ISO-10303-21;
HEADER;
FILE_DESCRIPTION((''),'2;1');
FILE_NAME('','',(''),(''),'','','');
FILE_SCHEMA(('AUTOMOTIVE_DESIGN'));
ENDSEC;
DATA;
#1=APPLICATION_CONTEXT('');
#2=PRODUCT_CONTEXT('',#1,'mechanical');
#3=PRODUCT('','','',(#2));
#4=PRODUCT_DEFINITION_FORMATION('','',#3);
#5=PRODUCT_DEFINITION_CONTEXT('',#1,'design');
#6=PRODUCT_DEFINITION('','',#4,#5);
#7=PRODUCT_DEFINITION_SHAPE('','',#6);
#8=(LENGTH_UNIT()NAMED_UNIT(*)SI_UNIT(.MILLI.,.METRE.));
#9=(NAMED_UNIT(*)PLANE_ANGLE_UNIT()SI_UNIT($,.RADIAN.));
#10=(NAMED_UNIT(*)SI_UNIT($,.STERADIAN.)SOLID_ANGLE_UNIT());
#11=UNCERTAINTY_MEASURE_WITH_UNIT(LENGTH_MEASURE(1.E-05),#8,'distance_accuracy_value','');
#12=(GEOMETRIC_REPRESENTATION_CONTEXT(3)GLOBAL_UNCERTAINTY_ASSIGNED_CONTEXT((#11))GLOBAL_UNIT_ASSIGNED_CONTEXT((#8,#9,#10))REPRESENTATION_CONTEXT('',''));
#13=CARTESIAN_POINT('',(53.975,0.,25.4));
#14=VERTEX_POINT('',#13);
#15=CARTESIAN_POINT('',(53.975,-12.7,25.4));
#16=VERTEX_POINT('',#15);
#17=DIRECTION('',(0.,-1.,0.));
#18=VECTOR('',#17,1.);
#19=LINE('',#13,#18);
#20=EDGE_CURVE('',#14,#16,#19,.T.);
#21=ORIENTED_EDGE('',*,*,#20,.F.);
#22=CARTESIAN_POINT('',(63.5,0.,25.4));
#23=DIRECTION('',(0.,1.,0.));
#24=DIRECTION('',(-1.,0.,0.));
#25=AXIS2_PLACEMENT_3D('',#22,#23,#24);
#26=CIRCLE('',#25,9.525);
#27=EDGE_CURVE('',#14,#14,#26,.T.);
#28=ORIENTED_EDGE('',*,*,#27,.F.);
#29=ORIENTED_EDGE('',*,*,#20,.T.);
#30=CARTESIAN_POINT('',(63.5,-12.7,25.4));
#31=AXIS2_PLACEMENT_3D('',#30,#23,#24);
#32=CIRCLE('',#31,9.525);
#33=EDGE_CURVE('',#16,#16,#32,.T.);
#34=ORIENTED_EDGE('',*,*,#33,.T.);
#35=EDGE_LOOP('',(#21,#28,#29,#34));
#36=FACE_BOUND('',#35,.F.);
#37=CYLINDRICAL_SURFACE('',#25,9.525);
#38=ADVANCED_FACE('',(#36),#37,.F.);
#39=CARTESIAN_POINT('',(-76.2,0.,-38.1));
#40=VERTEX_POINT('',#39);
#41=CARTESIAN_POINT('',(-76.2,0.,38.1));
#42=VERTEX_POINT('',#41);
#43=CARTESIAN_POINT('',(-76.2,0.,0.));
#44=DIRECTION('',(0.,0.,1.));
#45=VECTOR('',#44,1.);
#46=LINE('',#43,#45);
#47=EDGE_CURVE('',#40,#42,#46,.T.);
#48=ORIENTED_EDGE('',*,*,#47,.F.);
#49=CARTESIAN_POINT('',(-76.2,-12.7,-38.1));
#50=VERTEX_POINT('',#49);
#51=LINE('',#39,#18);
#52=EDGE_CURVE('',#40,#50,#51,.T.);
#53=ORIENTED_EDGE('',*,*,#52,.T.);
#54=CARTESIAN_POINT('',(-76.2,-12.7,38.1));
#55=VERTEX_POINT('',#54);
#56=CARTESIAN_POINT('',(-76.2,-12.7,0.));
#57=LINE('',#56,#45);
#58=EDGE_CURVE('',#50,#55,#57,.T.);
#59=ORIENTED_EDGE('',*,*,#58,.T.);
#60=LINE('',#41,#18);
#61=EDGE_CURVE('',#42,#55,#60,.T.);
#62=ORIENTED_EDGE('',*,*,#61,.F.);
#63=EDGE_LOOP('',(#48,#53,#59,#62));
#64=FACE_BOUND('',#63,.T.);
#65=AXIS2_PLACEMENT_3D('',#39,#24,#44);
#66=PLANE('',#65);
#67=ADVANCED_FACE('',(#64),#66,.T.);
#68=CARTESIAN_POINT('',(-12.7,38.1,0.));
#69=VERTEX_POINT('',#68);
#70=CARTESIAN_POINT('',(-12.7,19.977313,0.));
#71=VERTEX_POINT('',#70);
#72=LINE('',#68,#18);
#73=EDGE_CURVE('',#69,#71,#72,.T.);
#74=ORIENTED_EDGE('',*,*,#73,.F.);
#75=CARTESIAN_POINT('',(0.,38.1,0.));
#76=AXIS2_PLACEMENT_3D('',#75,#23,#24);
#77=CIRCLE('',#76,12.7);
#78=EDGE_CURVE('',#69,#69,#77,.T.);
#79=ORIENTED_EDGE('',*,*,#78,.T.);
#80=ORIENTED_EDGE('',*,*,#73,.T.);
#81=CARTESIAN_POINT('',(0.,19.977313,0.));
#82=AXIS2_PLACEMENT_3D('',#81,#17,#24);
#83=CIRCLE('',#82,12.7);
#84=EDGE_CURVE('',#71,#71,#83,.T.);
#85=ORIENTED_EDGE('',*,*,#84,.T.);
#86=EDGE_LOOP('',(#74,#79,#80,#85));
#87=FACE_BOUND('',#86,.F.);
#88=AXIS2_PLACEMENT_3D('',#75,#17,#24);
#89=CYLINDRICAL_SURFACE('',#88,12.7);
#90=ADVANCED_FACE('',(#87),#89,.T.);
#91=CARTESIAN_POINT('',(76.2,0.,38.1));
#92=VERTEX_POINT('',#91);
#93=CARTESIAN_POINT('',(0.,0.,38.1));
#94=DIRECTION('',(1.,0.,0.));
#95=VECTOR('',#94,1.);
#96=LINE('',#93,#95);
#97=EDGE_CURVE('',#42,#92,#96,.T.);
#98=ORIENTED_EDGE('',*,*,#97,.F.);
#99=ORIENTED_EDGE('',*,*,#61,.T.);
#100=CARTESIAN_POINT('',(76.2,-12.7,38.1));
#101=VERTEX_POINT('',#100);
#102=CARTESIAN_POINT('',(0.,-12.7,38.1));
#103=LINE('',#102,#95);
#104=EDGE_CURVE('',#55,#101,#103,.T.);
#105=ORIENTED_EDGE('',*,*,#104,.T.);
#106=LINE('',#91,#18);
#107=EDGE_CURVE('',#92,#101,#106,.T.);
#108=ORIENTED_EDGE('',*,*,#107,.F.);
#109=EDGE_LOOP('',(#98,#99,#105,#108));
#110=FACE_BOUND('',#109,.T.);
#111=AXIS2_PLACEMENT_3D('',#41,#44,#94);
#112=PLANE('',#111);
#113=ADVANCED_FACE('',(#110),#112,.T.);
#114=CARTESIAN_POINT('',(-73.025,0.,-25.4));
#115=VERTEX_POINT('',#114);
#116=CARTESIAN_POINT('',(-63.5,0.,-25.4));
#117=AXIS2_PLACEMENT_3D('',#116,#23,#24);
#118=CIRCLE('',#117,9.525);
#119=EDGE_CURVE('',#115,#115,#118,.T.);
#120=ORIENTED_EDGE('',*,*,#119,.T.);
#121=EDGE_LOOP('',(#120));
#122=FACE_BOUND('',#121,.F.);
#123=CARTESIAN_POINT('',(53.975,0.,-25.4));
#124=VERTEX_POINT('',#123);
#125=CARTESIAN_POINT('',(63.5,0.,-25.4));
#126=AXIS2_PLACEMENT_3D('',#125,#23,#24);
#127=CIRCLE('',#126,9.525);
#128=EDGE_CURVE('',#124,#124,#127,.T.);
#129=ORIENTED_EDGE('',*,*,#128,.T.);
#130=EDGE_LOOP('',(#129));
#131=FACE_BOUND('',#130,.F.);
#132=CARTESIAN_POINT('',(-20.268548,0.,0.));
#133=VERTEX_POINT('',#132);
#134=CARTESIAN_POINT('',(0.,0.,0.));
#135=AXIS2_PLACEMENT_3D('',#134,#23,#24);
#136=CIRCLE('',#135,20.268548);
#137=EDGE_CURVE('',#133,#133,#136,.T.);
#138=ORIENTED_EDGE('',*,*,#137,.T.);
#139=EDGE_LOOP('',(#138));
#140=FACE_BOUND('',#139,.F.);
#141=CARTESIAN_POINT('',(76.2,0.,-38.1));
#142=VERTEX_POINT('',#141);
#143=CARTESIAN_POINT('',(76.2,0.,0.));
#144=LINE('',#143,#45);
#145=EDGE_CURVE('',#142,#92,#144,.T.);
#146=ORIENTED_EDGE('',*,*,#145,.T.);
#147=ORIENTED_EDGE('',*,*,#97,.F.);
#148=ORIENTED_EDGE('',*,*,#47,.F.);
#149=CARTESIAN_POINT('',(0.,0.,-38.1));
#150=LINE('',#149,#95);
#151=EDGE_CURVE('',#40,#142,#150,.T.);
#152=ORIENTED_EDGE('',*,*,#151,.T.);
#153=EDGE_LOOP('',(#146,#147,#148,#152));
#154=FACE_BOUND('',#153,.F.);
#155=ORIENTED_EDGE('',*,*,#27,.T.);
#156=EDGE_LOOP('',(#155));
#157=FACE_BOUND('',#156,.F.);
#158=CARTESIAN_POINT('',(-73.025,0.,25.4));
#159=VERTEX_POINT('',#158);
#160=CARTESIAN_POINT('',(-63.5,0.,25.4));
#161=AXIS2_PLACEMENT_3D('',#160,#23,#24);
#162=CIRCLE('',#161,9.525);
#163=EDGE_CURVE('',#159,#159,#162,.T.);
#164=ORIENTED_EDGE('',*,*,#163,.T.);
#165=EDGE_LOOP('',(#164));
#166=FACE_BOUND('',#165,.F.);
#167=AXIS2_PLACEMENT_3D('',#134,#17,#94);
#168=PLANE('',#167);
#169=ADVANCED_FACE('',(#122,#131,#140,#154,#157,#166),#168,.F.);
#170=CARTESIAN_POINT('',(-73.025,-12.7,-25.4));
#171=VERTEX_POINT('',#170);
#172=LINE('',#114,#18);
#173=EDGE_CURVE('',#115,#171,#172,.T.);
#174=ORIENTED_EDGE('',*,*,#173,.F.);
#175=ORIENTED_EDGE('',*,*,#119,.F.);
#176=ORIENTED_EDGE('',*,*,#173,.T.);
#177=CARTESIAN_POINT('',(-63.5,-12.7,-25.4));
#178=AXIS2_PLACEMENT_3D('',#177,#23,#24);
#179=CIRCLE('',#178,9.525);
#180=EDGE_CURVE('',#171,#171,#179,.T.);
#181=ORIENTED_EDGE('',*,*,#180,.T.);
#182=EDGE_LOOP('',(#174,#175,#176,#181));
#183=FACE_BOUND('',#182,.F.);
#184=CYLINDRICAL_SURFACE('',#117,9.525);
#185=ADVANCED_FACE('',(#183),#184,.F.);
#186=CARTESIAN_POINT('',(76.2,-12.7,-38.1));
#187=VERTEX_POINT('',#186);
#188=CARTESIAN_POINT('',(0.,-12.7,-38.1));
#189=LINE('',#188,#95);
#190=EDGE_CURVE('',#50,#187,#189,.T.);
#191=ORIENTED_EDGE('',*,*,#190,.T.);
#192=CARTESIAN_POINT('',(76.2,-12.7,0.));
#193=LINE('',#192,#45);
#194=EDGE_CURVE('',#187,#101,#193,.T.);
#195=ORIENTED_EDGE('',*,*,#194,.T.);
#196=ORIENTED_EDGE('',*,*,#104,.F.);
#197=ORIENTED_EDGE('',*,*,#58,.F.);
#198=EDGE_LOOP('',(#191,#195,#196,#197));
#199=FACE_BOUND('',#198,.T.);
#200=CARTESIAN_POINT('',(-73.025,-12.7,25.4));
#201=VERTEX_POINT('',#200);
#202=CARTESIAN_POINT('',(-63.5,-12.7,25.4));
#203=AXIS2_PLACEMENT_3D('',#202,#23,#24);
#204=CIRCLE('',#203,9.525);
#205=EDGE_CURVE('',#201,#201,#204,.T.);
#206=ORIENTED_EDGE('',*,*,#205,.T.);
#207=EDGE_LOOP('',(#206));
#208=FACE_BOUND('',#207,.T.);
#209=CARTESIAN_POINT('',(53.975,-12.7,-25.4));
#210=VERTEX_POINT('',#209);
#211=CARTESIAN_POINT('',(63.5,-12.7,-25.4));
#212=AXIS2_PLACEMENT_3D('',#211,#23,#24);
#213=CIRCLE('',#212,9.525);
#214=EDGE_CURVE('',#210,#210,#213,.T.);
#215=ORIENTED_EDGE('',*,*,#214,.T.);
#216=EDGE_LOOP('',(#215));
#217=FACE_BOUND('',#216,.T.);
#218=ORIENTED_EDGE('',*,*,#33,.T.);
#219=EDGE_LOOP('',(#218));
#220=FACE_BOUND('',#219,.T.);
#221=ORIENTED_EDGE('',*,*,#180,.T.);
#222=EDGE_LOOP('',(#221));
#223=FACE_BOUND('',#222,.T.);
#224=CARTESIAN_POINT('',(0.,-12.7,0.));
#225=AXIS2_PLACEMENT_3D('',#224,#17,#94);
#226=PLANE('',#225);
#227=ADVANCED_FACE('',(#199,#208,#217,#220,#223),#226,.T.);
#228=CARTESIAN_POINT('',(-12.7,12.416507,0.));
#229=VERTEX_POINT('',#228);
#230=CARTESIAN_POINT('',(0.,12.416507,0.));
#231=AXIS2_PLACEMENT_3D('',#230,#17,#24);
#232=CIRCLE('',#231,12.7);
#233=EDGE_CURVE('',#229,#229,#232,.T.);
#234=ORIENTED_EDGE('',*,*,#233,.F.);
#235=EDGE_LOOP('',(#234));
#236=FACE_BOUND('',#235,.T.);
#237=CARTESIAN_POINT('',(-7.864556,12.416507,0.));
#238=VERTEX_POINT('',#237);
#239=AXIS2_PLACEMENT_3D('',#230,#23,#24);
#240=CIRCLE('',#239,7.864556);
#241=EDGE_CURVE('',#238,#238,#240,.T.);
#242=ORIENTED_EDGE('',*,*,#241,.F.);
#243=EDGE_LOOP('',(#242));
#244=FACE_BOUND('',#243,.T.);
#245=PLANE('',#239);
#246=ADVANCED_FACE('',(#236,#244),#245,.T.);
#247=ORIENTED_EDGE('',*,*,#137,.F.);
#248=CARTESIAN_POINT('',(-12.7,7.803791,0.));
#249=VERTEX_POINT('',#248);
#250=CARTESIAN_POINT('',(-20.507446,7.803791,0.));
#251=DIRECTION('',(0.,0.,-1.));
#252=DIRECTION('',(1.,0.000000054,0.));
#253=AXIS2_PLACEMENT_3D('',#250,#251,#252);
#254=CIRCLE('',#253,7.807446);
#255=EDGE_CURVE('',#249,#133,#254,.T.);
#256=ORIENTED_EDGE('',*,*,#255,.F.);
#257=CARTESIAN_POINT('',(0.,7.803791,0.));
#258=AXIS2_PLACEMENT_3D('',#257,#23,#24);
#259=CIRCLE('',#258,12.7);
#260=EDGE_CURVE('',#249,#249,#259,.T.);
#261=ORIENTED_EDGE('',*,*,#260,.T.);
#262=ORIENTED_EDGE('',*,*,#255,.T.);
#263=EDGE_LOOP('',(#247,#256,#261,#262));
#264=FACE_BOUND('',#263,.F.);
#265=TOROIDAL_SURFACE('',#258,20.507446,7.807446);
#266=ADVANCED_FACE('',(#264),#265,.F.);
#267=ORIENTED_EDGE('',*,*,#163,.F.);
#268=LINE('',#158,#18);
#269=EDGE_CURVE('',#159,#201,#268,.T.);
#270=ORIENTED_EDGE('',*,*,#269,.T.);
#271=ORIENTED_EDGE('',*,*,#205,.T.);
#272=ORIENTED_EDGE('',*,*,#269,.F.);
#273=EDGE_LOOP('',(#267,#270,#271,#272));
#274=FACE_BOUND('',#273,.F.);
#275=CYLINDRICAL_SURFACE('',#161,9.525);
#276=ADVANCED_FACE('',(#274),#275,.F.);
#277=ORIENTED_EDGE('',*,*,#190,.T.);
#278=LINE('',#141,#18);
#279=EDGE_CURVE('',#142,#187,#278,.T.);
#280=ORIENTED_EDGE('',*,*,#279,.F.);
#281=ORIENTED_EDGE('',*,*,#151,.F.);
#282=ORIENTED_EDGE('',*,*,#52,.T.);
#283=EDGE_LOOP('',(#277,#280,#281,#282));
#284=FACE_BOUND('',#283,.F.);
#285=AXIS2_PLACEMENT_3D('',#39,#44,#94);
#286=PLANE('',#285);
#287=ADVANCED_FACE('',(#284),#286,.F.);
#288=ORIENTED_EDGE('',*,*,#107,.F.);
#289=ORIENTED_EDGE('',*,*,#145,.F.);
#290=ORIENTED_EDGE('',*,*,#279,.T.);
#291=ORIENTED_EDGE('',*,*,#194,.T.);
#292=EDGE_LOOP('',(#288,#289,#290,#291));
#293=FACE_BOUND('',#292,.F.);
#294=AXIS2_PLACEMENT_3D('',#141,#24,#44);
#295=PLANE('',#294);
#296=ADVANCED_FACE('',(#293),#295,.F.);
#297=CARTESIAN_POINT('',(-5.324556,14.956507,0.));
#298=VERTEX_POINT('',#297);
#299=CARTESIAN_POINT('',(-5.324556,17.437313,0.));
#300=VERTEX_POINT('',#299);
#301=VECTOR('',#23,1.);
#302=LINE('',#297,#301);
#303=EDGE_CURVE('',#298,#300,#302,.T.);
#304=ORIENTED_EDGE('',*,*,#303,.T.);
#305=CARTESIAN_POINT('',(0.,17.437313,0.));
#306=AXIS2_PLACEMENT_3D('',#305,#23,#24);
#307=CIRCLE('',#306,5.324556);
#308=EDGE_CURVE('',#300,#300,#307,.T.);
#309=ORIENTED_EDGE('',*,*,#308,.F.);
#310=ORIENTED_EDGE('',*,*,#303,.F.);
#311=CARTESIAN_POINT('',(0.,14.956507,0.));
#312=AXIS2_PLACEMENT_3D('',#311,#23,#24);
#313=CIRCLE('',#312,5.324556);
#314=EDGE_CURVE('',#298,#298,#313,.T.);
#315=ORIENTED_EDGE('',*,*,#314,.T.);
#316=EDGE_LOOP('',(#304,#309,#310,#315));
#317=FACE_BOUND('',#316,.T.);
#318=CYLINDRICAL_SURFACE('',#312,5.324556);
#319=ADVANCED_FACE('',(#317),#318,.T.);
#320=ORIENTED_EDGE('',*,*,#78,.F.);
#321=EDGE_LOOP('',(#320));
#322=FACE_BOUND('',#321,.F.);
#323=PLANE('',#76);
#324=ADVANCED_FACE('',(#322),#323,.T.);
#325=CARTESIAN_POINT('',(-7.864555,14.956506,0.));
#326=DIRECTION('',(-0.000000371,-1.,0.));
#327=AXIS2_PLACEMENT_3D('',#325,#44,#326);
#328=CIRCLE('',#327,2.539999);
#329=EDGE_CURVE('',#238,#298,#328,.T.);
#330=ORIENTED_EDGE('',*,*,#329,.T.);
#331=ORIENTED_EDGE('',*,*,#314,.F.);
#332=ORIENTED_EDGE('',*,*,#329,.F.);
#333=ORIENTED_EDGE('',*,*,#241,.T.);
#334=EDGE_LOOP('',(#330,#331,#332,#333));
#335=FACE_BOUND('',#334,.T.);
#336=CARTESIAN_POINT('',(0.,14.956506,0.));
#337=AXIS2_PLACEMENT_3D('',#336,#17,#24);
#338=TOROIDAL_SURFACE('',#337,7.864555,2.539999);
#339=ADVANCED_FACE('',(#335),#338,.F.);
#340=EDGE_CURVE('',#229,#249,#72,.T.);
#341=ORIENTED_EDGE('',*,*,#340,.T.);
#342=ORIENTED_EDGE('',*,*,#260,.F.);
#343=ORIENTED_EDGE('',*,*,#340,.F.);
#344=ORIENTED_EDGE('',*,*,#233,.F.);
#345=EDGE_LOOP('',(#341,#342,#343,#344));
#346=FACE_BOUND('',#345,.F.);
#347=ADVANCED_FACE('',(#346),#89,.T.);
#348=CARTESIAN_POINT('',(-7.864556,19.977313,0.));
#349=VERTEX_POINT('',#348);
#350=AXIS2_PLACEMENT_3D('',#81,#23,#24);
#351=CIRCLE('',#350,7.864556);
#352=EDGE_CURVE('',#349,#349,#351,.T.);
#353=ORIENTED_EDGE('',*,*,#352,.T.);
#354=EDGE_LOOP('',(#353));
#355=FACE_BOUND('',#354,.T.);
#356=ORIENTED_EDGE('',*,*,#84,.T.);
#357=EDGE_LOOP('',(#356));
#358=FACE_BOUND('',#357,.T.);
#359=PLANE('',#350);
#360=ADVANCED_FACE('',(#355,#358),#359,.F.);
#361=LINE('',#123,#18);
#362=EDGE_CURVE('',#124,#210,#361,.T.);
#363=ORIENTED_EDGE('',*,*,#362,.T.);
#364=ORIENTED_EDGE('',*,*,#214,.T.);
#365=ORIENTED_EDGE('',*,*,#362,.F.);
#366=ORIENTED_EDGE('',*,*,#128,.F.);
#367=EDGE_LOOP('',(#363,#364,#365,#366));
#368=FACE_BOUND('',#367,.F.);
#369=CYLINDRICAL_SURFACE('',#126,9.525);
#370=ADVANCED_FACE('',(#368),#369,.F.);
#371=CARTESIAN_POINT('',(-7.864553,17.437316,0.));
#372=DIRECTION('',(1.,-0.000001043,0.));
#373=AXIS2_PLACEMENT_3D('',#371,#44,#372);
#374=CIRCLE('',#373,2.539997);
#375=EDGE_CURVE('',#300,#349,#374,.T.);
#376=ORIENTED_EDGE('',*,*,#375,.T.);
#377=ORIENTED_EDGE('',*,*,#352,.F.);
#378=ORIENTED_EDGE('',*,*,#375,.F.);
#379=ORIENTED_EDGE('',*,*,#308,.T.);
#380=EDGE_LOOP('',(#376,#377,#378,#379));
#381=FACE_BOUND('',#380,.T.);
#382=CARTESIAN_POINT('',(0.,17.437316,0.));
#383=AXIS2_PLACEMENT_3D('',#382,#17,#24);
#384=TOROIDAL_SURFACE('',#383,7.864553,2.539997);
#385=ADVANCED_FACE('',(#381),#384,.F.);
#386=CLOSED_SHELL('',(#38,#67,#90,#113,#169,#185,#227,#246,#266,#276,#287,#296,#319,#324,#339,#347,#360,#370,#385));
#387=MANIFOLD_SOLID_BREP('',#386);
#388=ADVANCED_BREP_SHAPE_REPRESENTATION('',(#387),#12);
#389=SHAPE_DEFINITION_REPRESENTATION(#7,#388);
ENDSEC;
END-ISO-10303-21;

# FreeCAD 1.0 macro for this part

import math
import FreeCAD as App
import Part
import Sketcher

V = App.Vector
Q = App.Units.Quantity


def add_polygon(sketch, points):
    """Adds a closed chain of lines whose ends are joined by coincident constraints."""
    first, n = sketch.GeometryCount, len(points)
    for a, b in zip(points, points[1:] + points[:1]):
        sketch.addGeometry(Part.LineSegment(App.Vector(*a, 0), App.Vector(*b, 0)), False)
    for i in range(n):
        sketch.addConstraint(Sketcher.Constraint("Coincident", first + i, 2, first + (i + 1) % n, 1))

doc = App.newDocument("Part")
body = doc.addObject("PartDesign::Body", "Body")

# Sketch on XZ plane
sketch1 = body.newObject("Sketcher::SketchObject", "Sketch")
sketch1.AttachmentSupport = (doc.getObject("XZ_Plane"), [""])
sketch1.MapMode = "FlatFace"
add_polygon(sketch1, [(-76, 38), (-76, -38), (76, -38), (76, 38)])  # lines 0-3
sketch1.addConstraint([
    Sketcher.Constraint("Vertical", 0),
    Sketcher.Constraint("Horizontal", 1),
    Sketcher.Constraint("Vertical", 2),
    Sketcher.Constraint("Horizontal", 3),
    Sketcher.Constraint("Symmetric", 0, 2, 2, 2, -1, 1),
    Sketcher.Constraint("DistanceX", 1, 1, 1, 2, Q("6 in")),
    Sketcher.Constraint("DistanceY", 0, 2, 0, 1, Q("3 in")),
])
pad1 = body.newObject("PartDesign::Pad", "Pad")
pad1.Profile = sketch1
pad1.Length = Q("0.5 in")

# Sketch on XZ plane
sketch2 = body.newObject("Sketcher::SketchObject", "Sketch001")
sketch2.AttachmentSupport = (doc.getObject("XZ_Plane"), [""])
sketch2.MapMode = "FlatFace"
sketch2.addGeometry([
    Part.Circle(V(-64, 25, 0), V(0, 0, 1), 10),
    Part.Circle(V(-64, -25, 0), V(0, 0, 1), 10),
    Part.Circle(V(64, -25, 0), V(0, 0, 1), 10),
    Part.Circle(V(64, 25, 0), V(0, 0, 1), 10),
], False)
sketch2.addConstraint([
    Sketcher.Constraint("Equal", 0, 1),
    Sketcher.Constraint("Equal", 1, 2),
    Sketcher.Constraint("Equal", 2, 3),
    Sketcher.Constraint("Symmetric", 0, 3, 2, 3, -1, 1),
    Sketcher.Constraint("Symmetric", 1, 3, 3, 3, -1, 1),
    Sketcher.Constraint("Symmetric", 1, 3, 2, 3, -2),
    Sketcher.Constraint("Diameter", 0, Q("0.75 in")),
    Sketcher.Constraint("DistanceY", -1, 1, 0, 3, Q("1 in")),
    Sketcher.Constraint("DistanceX", 1, 3, 2, 3, Q("5 in")),
])
pocket1 = body.newObject("PartDesign::Pocket", "Pocket")
pocket1.Profile = sketch2
pocket1.Type = "ThroughAll"
pocket1.Reversed = True

# Sketch on XY plane
sketch3 = body.newObject("Sketcher::SketchObject", "Sketch002")
sketch3.AttachmentSupport = (doc.getObject("XY_Plane"), [""])
sketch3.MapMode = "FlatFace"
sketch3.addGeometry([
    Part.ArcOfCircle(Part.Circle(V(-20.51, 7.8, 0), V(0, 0, 1), 7.81), math.radians(-91.75), math.radians(-88.25)),  # 0
    Part.LineSegment(V(-20.27, 0, 0), V(-20.75, 0, 0)),  # 1
    Part.LineSegment(V(0, 0, 0), V(0, 38.1, 0)),  # 2
    Part.LineSegment(V(0, 38.1, 0), V(-12.7, 38.1, 0)),  # 3
    Part.LineSegment(V(-12.7, 38.1, 0), V(-12.7, 7.8, 0)),  # 4
    Part.ArcOfCircle(Part.Circle(V(-20.51, 7.8, 0), V(0, 0, 1), 7.81), math.radians(-88), math.radians(0)),  # 5
    Part.LineSegment(V(-20.27, 0, 0), V(0, 0, 0)),  # 6
], False)
sketch3.addConstraint([
    Sketcher.Constraint("Coincident", 0, 1, 1, 2),
    Sketcher.Constraint("Coincident", 1, 1, 0, 2),
    Sketcher.Constraint("Coincident", 2, 2, 3, 1),
    Sketcher.Constraint("Coincident", 3, 2, 4, 1),
    Sketcher.Constraint("Tangent", 4, 2, 5, 2),
    Sketcher.Constraint("Coincident", 5, 1, 6, 1),
    Sketcher.Constraint("Coincident", 6, 2, 2, 1),
    Sketcher.Constraint("Horizontal", 1),
    Sketcher.Constraint("Vertical", 2),
    Sketcher.Constraint("Horizontal", 3),
    Sketcher.Constraint("Vertical", 4),
    Sketcher.Constraint("Horizontal", 6),
    Sketcher.Constraint("Coincident", 6, 2, -1, 1),
    Sketcher.Constraint("Coincident", 5, 1, 1, 1),
    Sketcher.Constraint("Vertical", 0, 3, 5, 3),
    Sketcher.Constraint("DistanceX", 3, 2, 3, 1, Q("0.5 in")),
    Sketcher.Constraint("DistanceY", 2, 1, 2, 2, Q("1.5 in")),
    Sketcher.Constraint("DistanceX", 1, 2, 1, 1, 0.477799),
    Sketcher.Constraint("Radius", 0, 7.807212),
    Sketcher.Constraint("Radius", 5, 7.807446),
])
revolution = body.newObject("PartDesign::Revolution", "Revolution")
revolution.Profile = sketch3
revolution.ReferenceAxis = (sketch3, ["V_Axis"])
revolution.Angle = 360

# Sketch on XY plane
sketch4 = body.newObject("Sketcher::SketchObject", "Sketch003")
sketch4.AttachmentSupport = (doc.getObject("XY_Plane"), [""])
sketch4.MapMode = "FlatFace"
sketch4.addGeometry([
    Part.LineSegment(V(-16, 12.4, 0), V(-7.9, 12.4, 0)),  # 0
    Part.ArcOfCircle(Part.Circle(V(-7.9, 15, 0), V(0, 0, 1), 2.5), math.radians(-90), math.radians(0)),  # 1
    Part.LineSegment(V(-5.3, 15, 0), V(-5.3, 17.4, 0)),  # 2
    Part.ArcOfCircle(Part.Circle(V(-7.9, 17.4, 0), V(0, 0, 1), 2.5), math.radians(0), math.radians(90)),  # 3
    Part.LineSegment(V(-7.9, 20, 0), V(-16, 20, 0)),  # 4
    Part.LineSegment(V(-16, 20, 0), V(-16, 12.4, 0)),  # 5
], False)
sketch4.addConstraint([
    Sketcher.Constraint("Tangent", 0, 2, 1, 1),
    Sketcher.Constraint("Tangent", 1, 2, 2, 1),
    Sketcher.Constraint("Tangent", 2, 2, 3, 1),
    Sketcher.Constraint("Tangent", 3, 2, 4, 1),
    Sketcher.Constraint("Coincident", 4, 2, 5, 1),
    Sketcher.Constraint("Coincident", 5, 2, 0, 1),
    Sketcher.Constraint("Horizontal", 0),
    Sketcher.Constraint("Vertical", 2),
    Sketcher.Constraint("Horizontal", 4),
    Sketcher.Constraint("Vertical", 5),
    Sketcher.Constraint("Equal", 1, 3),
    Sketcher.Constraint("Radius", 1, Q("0.1 in")),
    Sketcher.Constraint("DistanceX", 0, 1, 0, 2, 8.109111),
    Sketcher.Constraint("DistanceY", 2, 1, 2, 2, 2.480806),
    Sketcher.Constraint("DistanceX", 1, 3, -1, 1, 7.864555),
    Sketcher.Constraint("DistanceY", -1, 1, 1, 3, 14.956506),
])
groove = body.newObject("PartDesign::Groove", "Groove")
groove.Profile = sketch4
groove.ReferenceAxis = (sketch4, ["V_Axis"])
groove.Angle = 360

doc.recompute()
